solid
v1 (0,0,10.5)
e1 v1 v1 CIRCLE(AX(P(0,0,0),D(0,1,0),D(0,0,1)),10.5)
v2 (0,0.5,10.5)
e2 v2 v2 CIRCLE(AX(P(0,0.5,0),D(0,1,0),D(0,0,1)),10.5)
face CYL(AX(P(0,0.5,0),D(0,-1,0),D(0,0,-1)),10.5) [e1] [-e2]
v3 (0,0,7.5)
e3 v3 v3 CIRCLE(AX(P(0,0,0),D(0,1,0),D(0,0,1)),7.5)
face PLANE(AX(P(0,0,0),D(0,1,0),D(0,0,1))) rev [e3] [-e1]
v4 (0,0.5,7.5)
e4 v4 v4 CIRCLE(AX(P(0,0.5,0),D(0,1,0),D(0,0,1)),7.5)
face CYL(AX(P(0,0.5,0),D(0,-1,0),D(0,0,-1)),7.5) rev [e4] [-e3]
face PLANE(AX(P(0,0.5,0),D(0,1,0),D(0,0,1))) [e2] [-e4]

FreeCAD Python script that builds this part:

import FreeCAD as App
import Part
import Sketcher

doc = App.newDocument("Part")
params = doc.addObject("Spreadsheet::Sheet", "Params")
for row, (alias, value) in enumerate([
    ("sketch1_diameter", "21 mm"),
    ("sketch1_diameter2", "15 mm"),
    ("pad1_length", "0.5 mm"),
], start=1):
    params.set(f"A{row}", alias)
    params.set(f"B{row}", "=" + value)
    params.setAlias(f"B{row}", alias)

body = doc.addObject("PartDesign::Body", "Body")

# Sketch on XZ plane
sketch1 = body.newObject("Sketcher::SketchObject", "Sketch")
sketch1.AttachmentSupport = (doc.getObject("XZ_Plane"), [""])
sketch1.MapMode = "FlatFace"
sketch1.addGeometry([
    Part.Circle(App.Vector(0, 0, 0), App.Vector(0, 0, 1), 10),
    Part.Circle(App.Vector(0, 0, 0), App.Vector(0, 0, 1), 8),
], False)
sketch1.addConstraint([
    Sketcher.Constraint("Coincident", 0, 3, -1, 1),
    Sketcher.Constraint("Coincident", 1, 3, -1, 1),
    Sketcher.Constraint("Diameter", 0, 21.0),
    Sketcher.Constraint("Diameter", 1, 15.0),
])
sketch1.setExpression("Constraints[2]", "Params.sketch1_diameter")
sketch1.setExpression("Constraints[3]", "Params.sketch1_diameter2")
pad1 = body.newObject("PartDesign::Pad", "Pad")
pad1.Profile = sketch1
pad1.setExpression("Length", "Params.pad1_length")
pad1.Reversed = True

doc.recompute()
